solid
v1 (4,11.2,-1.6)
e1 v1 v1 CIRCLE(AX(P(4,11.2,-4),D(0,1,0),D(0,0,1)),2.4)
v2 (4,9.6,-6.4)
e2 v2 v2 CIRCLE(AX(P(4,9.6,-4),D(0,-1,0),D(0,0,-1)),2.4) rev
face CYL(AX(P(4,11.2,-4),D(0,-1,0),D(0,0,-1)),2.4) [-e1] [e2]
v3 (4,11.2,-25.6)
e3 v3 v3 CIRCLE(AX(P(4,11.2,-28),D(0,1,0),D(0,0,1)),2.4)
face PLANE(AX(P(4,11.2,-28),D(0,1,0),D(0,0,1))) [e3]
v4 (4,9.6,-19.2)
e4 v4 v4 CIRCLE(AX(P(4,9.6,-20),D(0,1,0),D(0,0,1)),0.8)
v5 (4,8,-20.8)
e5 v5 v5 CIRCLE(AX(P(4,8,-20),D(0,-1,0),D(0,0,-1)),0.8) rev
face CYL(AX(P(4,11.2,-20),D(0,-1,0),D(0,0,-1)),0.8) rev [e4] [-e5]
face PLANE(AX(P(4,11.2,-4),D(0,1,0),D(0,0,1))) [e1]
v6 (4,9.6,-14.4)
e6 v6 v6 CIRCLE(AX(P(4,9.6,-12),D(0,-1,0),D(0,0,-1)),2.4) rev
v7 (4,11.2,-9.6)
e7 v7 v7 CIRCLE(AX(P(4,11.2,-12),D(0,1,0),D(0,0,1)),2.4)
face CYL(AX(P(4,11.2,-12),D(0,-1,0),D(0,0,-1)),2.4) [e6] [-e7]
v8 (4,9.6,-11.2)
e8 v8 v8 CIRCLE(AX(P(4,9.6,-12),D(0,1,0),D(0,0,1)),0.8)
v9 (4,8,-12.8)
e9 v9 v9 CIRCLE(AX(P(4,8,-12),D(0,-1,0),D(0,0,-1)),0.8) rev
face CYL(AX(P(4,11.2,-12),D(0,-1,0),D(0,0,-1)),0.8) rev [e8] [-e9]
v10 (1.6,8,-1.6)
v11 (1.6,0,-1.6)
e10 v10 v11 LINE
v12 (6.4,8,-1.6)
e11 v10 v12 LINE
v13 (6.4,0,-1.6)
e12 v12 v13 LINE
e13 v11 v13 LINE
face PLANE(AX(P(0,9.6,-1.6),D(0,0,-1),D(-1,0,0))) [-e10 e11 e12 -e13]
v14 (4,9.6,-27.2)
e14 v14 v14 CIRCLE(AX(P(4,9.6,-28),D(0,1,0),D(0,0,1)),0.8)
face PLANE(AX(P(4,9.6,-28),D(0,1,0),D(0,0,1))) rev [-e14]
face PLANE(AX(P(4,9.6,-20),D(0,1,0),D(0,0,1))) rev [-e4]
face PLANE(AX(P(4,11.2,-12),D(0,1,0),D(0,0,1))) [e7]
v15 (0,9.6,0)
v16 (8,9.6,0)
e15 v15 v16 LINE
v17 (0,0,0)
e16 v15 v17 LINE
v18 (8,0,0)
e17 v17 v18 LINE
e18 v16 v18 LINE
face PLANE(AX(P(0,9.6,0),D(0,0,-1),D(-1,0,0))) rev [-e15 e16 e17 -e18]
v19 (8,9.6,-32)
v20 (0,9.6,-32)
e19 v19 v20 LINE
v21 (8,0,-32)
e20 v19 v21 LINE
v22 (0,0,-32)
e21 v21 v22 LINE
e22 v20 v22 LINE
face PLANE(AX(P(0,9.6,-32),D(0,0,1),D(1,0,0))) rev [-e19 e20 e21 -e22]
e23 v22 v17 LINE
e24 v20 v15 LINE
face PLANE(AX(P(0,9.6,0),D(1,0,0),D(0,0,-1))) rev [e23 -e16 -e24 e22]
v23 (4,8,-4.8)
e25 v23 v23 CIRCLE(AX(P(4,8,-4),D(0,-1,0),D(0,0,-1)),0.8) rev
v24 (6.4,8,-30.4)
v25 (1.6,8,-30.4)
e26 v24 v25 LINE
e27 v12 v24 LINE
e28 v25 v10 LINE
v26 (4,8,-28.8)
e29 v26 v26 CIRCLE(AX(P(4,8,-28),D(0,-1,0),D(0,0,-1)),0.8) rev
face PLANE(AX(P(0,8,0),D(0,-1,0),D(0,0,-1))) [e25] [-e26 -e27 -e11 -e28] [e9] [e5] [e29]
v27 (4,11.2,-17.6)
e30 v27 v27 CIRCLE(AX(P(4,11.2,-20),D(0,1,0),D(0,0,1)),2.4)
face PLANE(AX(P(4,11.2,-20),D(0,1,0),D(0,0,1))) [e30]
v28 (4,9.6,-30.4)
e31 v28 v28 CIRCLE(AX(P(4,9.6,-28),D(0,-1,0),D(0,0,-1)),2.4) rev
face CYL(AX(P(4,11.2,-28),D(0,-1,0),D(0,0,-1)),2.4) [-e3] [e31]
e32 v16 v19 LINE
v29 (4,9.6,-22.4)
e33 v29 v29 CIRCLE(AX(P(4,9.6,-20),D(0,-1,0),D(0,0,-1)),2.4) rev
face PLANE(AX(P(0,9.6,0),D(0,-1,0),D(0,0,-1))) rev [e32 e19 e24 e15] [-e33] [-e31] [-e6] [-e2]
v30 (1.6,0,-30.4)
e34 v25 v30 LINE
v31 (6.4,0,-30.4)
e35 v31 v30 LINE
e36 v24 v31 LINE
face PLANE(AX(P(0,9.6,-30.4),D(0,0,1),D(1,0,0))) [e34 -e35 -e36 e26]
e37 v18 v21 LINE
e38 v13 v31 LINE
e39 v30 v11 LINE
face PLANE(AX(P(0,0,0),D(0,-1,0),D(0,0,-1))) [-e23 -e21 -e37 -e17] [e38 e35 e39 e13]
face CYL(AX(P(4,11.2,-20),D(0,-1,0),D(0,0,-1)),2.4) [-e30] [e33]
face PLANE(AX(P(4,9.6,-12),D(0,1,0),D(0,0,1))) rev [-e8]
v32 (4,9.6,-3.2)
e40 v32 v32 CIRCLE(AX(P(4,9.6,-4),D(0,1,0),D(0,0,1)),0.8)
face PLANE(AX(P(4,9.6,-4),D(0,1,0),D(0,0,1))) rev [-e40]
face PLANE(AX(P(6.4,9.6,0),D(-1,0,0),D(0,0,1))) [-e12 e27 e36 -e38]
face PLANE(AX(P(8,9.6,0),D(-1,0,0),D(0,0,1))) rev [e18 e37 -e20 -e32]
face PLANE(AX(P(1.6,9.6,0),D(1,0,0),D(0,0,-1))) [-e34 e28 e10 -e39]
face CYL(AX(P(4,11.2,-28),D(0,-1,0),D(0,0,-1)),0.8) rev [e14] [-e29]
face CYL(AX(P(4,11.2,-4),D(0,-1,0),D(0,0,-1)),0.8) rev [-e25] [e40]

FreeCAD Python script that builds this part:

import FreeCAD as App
import Part
import Sketcher
Q = App.Units.Quantity


def faces_at(feature, points):
    """Names of the faces that lie closest to the given points."""
    faces = feature.Shape.Faces
    near = lambda p: min(range(len(faces)), key=lambda i: faces[i].distToShape(Part.Vertex(*p))[0])
    return sorted({f"Face{near(p) + 1}" for p in points})

doc = App.newDocument("Part")
body = doc.addObject("PartDesign::Body", "Body")

# Sketch on XZ plane
sketch1 = doc.addObject("Sketcher::SketchObject", "Sketch")
body.addObject(sketch1)
sketch1.AttachmentSupport = (doc.XZ_Plane, [""])
sketch1.MapMode = "FlatFace"
sketch1.addGeometry([
    Part.LineSegment(App.Vector(0, -32, 0), App.Vector(0, 0, 0)),
    Part.LineSegment(App.Vector(0, 0, 0), App.Vector(8, 0, 0)),
    Part.LineSegment(App.Vector(8, 0, 0), App.Vector(8, -32, 0)),
    Part.LineSegment(App.Vector(8, -32, 0), App.Vector(0, -32, 0)),
], False)
sketch1.addConstraint([
    Sketcher.Constraint("Coincident", 0, 2, 1, 1),
    Sketcher.Constraint("Coincident", 1, 2, 2, 1),
    Sketcher.Constraint("Coincident", 2, 2, 3, 1),
    Sketcher.Constraint("Coincident", 3, 2, 0, 1),
    Sketcher.Constraint("Vertical", 0),
    Sketcher.Constraint("Horizontal", 1),
    Sketcher.Constraint("Vertical", 2),
    Sketcher.Constraint("Horizontal", 3),
    Sketcher.Constraint("Coincident", 0, 2, -1, 1),
    Sketcher.Constraint("DistanceX", 1, 1, 1, 2, Q("8 mm")),
    Sketcher.Constraint("DistanceY", 0, 1, 0, 2, Q("32 mm")),
])
pad1 = doc.addObject("PartDesign::Pad", "Pad")
body.addObject(pad1)
pad1.Profile = sketch1
pad1.Length = 9.6
pad1.Reversed = True

# Sketch on XZ plane
sketch2 = doc.addObject("Sketcher::SketchObject", "Sketch001")
body.addObject(sketch2)
sketch2.AttachmentSupport = (doc.XZ_Plane, [""])
sketch2.MapMode = "FlatFace"
sketch2.AttachmentOffset = App.Placement(App.Vector(0, 0, -9.6), App.Rotation())
sketch2.addGeometry(Part.Circle(App.Vector(4, -4, 0), App.Vector(0, 0, 1), 2.4), False)
sketch2.addConstraint([
    Sketcher.Constraint("Diameter", 0, Q("4.8 mm")),
    Sketcher.Constraint("DistanceX", -1, 1, 0, 3, Q("4 mm")),
    Sketcher.Constraint("DistanceY", 0, 3, -1, 1, Q("4 mm")),
])
pad2 = doc.addObject("PartDesign::Pad", "Pad001")
body.addObject(pad2)
pad2.Profile = sketch2
pad2.Length = 1.6
pad2.Reversed = True
doc.recompute()

linearpattern = doc.addObject("PartDesign::LinearPattern", "LinearPattern")
body.addObject(linearpattern)
linearpattern.Originals = [pad2]
linearpattern.Direction = (doc.Z_Axis, [""])
linearpattern.Mode = "offset"
linearpattern.Offset = 8
linearpattern.Occurrences = 4
linearpattern.Reversed = True
body.Tip = linearpattern
doc.recompute()

thickness = doc.addObject("PartDesign::Thickness", "Thickness")
body.addObject(thickness)
thickness.Base = (linearpattern, faces_at(linearpattern, [(4, 0, -16)]))
thickness.Value = 1.6
thickness.Reversed = True
thickness.Join = "Intersection"

doc.recompute()
